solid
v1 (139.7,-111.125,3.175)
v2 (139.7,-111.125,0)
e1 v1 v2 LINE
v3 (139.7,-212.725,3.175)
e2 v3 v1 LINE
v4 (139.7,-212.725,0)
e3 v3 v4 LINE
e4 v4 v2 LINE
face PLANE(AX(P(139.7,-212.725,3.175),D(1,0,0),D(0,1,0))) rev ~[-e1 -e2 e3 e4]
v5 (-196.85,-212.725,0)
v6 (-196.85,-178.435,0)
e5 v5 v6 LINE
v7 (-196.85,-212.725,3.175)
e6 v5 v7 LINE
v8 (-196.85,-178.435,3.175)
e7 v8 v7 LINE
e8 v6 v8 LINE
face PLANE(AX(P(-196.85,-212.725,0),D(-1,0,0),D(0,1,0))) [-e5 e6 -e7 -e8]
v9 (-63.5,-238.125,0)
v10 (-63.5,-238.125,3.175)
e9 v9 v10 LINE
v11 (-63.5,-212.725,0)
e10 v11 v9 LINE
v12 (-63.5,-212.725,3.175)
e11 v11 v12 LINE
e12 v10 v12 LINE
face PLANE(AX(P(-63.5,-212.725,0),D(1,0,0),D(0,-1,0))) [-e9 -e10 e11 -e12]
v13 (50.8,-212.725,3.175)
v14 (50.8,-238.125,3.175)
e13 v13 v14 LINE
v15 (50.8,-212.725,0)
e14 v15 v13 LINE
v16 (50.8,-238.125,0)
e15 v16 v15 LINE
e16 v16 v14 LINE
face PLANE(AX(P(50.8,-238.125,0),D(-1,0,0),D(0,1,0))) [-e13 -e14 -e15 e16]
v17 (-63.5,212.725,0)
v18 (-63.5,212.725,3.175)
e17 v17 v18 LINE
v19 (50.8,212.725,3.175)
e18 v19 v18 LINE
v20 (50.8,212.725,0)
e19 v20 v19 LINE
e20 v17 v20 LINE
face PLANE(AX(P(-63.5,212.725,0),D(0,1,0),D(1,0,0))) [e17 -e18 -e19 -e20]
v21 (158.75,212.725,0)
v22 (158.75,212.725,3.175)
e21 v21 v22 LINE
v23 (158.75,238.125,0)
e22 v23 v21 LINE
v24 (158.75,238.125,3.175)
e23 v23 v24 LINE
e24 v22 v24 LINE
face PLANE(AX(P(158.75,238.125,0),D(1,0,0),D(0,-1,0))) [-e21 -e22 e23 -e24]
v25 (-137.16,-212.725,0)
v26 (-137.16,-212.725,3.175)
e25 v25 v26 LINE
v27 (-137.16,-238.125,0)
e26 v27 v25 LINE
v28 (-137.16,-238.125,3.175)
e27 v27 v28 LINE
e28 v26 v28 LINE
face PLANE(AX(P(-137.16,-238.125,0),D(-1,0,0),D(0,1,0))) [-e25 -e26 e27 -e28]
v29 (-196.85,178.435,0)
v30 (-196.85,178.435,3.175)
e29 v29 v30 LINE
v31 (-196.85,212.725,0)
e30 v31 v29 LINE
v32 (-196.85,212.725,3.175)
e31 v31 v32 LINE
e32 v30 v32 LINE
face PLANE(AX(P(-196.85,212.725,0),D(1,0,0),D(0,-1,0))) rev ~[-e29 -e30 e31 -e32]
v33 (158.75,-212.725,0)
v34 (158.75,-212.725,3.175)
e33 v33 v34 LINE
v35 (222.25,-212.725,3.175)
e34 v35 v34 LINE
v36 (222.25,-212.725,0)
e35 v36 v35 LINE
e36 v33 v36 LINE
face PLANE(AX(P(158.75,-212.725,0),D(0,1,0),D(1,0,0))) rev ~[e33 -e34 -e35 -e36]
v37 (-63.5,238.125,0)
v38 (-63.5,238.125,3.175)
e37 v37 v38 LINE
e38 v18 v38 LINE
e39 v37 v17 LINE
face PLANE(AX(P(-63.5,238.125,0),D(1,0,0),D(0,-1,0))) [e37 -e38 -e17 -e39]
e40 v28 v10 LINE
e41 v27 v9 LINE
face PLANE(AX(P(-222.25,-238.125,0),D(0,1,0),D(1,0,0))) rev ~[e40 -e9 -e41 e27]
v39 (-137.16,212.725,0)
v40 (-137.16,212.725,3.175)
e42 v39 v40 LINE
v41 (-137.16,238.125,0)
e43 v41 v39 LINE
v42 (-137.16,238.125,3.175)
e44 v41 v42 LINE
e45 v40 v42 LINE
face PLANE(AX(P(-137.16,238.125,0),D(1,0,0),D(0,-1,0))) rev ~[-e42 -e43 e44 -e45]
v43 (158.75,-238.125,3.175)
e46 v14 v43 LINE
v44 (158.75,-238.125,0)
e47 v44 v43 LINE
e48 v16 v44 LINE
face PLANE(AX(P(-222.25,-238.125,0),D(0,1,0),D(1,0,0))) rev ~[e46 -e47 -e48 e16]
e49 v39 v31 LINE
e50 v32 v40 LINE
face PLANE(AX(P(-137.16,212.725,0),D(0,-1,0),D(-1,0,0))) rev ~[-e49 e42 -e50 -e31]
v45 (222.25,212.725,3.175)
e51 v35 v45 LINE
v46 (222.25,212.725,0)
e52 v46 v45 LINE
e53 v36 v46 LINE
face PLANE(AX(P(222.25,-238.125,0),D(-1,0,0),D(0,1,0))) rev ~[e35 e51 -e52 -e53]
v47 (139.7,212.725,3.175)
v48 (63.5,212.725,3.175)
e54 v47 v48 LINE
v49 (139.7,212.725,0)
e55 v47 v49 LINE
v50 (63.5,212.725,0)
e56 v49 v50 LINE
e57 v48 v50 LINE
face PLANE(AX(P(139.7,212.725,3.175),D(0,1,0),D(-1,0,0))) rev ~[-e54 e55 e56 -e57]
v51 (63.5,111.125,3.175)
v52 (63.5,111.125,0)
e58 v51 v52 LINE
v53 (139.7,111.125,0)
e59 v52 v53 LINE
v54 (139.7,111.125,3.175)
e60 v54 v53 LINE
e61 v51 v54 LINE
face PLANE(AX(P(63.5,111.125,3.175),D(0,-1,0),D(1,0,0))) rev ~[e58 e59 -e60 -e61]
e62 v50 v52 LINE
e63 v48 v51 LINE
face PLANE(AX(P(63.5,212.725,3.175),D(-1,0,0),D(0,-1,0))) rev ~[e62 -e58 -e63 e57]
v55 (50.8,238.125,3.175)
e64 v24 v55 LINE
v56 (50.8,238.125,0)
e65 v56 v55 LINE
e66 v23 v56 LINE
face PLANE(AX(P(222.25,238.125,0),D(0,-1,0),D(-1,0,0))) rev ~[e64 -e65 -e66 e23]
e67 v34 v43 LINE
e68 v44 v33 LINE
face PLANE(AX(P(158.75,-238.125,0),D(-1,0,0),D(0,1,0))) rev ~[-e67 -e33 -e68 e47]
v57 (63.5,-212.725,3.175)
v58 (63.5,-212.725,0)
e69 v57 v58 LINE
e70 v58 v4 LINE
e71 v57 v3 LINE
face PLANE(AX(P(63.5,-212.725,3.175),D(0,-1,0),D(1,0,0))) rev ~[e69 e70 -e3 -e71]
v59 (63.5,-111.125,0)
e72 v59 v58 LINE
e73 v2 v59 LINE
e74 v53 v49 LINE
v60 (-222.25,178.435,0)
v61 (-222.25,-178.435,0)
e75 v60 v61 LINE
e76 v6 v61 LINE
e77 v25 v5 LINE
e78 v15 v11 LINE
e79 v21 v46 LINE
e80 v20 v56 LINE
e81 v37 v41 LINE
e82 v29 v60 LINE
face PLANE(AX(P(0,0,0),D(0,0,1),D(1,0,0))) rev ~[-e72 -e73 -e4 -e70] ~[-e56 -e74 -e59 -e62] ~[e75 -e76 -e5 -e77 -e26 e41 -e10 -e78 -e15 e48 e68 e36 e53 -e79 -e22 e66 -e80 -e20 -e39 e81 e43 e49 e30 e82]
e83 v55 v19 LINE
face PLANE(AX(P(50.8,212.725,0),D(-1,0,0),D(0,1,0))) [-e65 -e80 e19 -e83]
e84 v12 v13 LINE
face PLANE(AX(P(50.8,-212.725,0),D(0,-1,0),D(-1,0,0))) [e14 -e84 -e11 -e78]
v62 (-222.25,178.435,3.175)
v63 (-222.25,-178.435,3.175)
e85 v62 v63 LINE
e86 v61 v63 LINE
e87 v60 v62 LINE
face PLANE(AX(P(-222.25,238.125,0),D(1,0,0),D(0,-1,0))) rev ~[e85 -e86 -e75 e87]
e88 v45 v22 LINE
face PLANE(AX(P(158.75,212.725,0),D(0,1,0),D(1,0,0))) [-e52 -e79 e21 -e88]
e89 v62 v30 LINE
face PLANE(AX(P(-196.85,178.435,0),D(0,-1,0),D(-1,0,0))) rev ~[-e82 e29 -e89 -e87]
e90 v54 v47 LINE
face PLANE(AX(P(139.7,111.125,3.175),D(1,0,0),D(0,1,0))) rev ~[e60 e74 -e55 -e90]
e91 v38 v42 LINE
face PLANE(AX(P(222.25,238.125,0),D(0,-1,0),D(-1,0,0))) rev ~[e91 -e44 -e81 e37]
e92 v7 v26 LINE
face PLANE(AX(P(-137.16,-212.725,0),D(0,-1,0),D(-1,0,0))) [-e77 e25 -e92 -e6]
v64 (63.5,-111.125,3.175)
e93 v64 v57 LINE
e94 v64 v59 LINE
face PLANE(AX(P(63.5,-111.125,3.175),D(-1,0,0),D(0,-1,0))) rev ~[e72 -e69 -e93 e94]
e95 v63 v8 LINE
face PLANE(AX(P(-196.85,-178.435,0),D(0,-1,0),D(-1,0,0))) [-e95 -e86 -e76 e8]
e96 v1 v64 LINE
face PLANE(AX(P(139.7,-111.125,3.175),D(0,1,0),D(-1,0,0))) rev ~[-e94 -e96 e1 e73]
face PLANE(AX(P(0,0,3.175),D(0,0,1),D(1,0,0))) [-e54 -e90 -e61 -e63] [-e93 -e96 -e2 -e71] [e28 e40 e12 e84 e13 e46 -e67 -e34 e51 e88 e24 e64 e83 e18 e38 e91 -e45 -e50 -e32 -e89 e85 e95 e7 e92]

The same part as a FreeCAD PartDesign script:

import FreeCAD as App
import Part
import Sketcher
Q = App.Units.Quantity

doc = App.newDocument("Part")
body = doc.addObject("PartDesign::Body", "Body")

# Sketch on XY plane
sketch1 = body.newObject("Sketcher::SketchObject", "Sketch")
sketch1.AttachmentSupport = (doc.getObject("XY_Plane"), [""])
sketch1.MapMode = "FlatFace"
sketch1.addGeometry([
    Part.LineSegment(App.Vector(-222.25, 238.125, 0), App.Vector(-222.25, -238.125, 0)),
    Part.LineSegment(App.Vector(-222.25, -238.125, 0), App.Vector(222.25, -238.125, 0)),
    Part.LineSegment(App.Vector(222.25, -238.125, 0), App.Vector(222.25, 238.125, 0)),
    Part.LineSegment(App.Vector(222.25, 238.125, 0), App.Vector(-222.25, 238.125, 0)),
], False)
sketch1.addConstraint([
    Sketcher.Constraint("Coincident", 0, 2, 1, 1),
    Sketcher.Constraint("Coincident", 1, 2, 2, 1),
    Sketcher.Constraint("Coincident", 2, 2, 3, 1),
    Sketcher.Constraint("Coincident", 3, 2, 0, 1),
    Sketcher.Constraint("Vertical", 0),
    Sketcher.Constraint("Horizontal", 1),
    Sketcher.Constraint("Vertical", 2),
    Sketcher.Constraint("Horizontal", 3),
    Sketcher.Constraint("Symmetric", 0, 2, 2, 2, -1, 1),
    Sketcher.Constraint("DistanceX", 1, 1, 1, 2, Q("17.5 in")),
    Sketcher.Constraint("DistanceY", 0, 2, 0, 1, Q("18.75 in")),
])
pad1 = body.newObject("PartDesign::Pad", "Pad")
pad1.Profile = sketch1
pad1.Length = Q("0.125 in")

# Sketch on XY plane
sketch2 = body.newObject("Sketcher::SketchObject", "Sketch001")
sketch2.AttachmentSupport = (doc.getObject("XY_Plane"), [""])
sketch2.MapMode = "FlatFace"
sketch2.AttachmentOffset = App.Placement(App.Vector(0, 0, 0.125 * 25.4), App.Rotation())
sketch2.addGeometry([
    Part.LineSegment(App.Vector(63.5, -111.125, 0), App.Vector(63.5, -212.725, 0)),
    Part.LineSegment(App.Vector(63.5, -212.725, 0), App.Vector(139.7, -212.725, 0)),
    Part.LineSegment(App.Vector(139.7, -212.725, 0), App.Vector(139.7, -111.125, 0)),
    Part.LineSegment(App.Vector(139.7, -111.125, 0), App.Vector(63.5, -111.125, 0)),
], False)
sketch2.addConstraint([
    Sketcher.Constraint("Coincident", 0, 2, 1, 1),
    Sketcher.Constraint("Coincident", 1, 2, 2, 1),
    Sketcher.Constraint("Coincident", 2, 2, 3, 1),
    Sketcher.Constraint("Coincident", 3, 2, 0, 1),
    Sketcher.Constraint("Vertical", 0),
    Sketcher.Constraint("Horizontal", 1),
    Sketcher.Constraint("Vertical", 2),
    Sketcher.Constraint("Horizontal", 3),
    Sketcher.Constraint("DistanceX", 1, 1, 1, 2, Q("3 in")),
    Sketcher.Constraint("DistanceY", 0, 2, 0, 1, Q("4 in")),
    Sketcher.Constraint("DistanceX", -1, 1, 0, 2, Q("2.5 in")),
    Sketcher.Constraint("DistanceY", 0, 2, -1, 1, Q("8.375 in")),
])
pocket1 = body.newObject("PartDesign::Pocket", "Pocket")
pocket1.Profile = sketch2
pocket1.Type = "ThroughAll"

# Sketch on XY plane
sketch3 = body.newObject("Sketcher::SketchObject", "Sketch002")
sketch3.AttachmentSupport = (doc.getObject("XY_Plane"), [""])
sketch3.MapMode = "FlatFace"
sketch3.AttachmentOffset = App.Placement(App.Vector(0, 0, 0.125 * 25.4), App.Rotation())
sketch3.addGeometry([
    Part.LineSegment(App.Vector(63.5, 212.725, 0), App.Vector(63.5, 111.125, 0)),
    Part.LineSegment(App.Vector(63.5, 111.125, 0), App.Vector(139.7, 111.125, 0)),
    Part.LineSegment(App.Vector(139.7, 111.125, 0), App.Vector(139.7, 212.725, 0)),
    Part.LineSegment(App.Vector(139.7, 212.725, 0), App.Vector(63.5, 212.725, 0)),
], False)
sketch3.addConstraint([
    Sketcher.Constraint("Coincident", 0, 2, 1, 1),
    Sketcher.Constraint("Coincident", 1, 2, 2, 1),
    Sketcher.Constraint("Coincident", 2, 2, 3, 1),
    Sketcher.Constraint("Coincident", 3, 2, 0, 1),
    Sketcher.Constraint("Vertical", 0),
    Sketcher.Constraint("Horizontal", 1),
    Sketcher.Constraint("Vertical", 2),
    Sketcher.Constraint("Horizontal", 3),
    Sketcher.Constraint("DistanceX", 1, 1, 1, 2, Q("3 in")),
    Sketcher.Constraint("DistanceY", 0, 2, 0, 1, Q("4 in")),
    Sketcher.Constraint("DistanceX", -1, 1, 0, 2, Q("2.5 in")),
    Sketcher.Constraint("DistanceY", -1, 1, 0, 2, Q("4.375 in")),
])
pocket2 = body.newObject("PartDesign::Pocket", "Pocket001")
pocket2.Profile = sketch3
pocket2.Type = "ThroughAll"

# Sketch on XY plane
sketch4 = body.newObject("Sketcher::SketchObject", "Sketch003")
sketch4.AttachmentSupport = (doc.getObject("XY_Plane"), [""])
sketch4.MapMode = "FlatFace"
sketch4.addGeometry([
    Part.LineSegment(App.Vector(222.25, -212.725, 0), App.Vector(222.25, -238.125, 0)),
    Part.LineSegment(App.Vector(222.25, -238.125, 0), App.Vector(158.75, -238.125, 0)),
    Part.LineSegment(App.Vector(158.75, -238.125, 0), App.Vector(158.75, -212.725, 0)),
    Part.LineSegment(App.Vector(158.75, -212.725, 0), App.Vector(222.25, -212.725, 0)),
], False)
sketch4.addConstraint([
    Sketcher.Constraint("Coincident", 0, 2, 1, 1),
    Sketcher.Constraint("Coincident", 1, 2, 2, 1),
    Sketcher.Constraint("Coincident", 2, 2, 3, 1),
    Sketcher.Constraint("Coincident", 3, 2, 0, 1),
    Sketcher.Constraint("Vertical", 0),
    Sketcher.Constraint("Horizontal", 1),
    Sketcher.Constraint("Vertical", 2),
    Sketcher.Constraint("Horizontal", 3),
    Sketcher.Constraint("DistanceY", 0, 2, 0, 1, Q("1 in")),
    Sketcher.Constraint("DistanceX", 1, 2, 1, 1, Q("2.5 in")),
    Sketcher.Constraint("DistanceX", -1, 1, 0, 2, Q("8.75 in")),
    Sketcher.Constraint("DistanceY", 0, 2, -1, 1, Q("9.375 in")),
])
pocket3 = body.newObject("PartDesign::Pocket", "Pocket002")
pocket3.Profile = sketch4
pocket3.Type = "ThroughAll"
pocket3.Reversed = True

# Sketch on XY plane
sketch5 = body.newObject("Sketcher::SketchObject", "Sketch004")
sketch5.AttachmentSupport = (doc.getObject("XY_Plane"), [""])
sketch5.MapMode = "FlatFace"
sketch5.addGeometry([
    Part.LineSegment(App.Vector(158.75, 238.125, 0), App.Vector(222.25, 238.125, 0)),
    Part.LineSegment(App.Vector(222.25, 238.125, 0), App.Vector(222.25, 212.725, 0)),
    Part.LineSegment(App.Vector(222.25, 212.725, 0), App.Vector(158.75, 212.725, 0)),
    Part.LineSegment(App.Vector(158.75, 212.725, 0), App.Vector(158.75, 238.125, 0)),
], False)
sketch5.addConstraint([
    Sketcher.Constraint("Coincident", 0, 2, 1, 1),
    Sketcher.Constraint("Coincident", 1, 2, 2, 1),
    Sketcher.Constraint("Coincident", 2, 2, 3, 1),
    Sketcher.Constraint("Coincident", 3, 2, 0, 1),
    Sketcher.Constraint("Horizontal", 0),
    Sketcher.Constraint("Vertical", 1),
    Sketcher.Constraint("Horizontal", 2),
    Sketcher.Constraint("Vertical", 3),
    Sketcher.Constraint("DistanceY", 1, 2, 1, 1, Q("1 in")),
    Sketcher.Constraint("DistanceX", 0, 1, 0, 2, Q("2.5 in")),
    Sketcher.Constraint("DistanceX", -1, 1, 0, 2, Q("8.75 in")),
    Sketcher.Constraint("DistanceY", -1, 1, 0, 2, Q("9.375 in")),
])
pocket4 = body.newObject("PartDesign::Pocket", "Pocket003")
pocket4.Profile = sketch5
pocket4.Type = "ThroughAll"
pocket4.Reversed = True

# Sketch on XY plane
sketch6 = body.newObject("Sketcher::SketchObject", "Sketch005")
sketch6.AttachmentSupport = (doc.getObject("XY_Plane"), [""])
sketch6.MapMode = "FlatFace"
sketch6.addGeometry([
    Part.LineSegment(App.Vector(-222.25, 238.125, 0), App.Vector(-137.16, 238.125, 0)),  # 0
    Part.LineSegment(App.Vector(-137.16, 238.125, 0), App.Vector(-137.16, 212.725, 0)),  # 1
    Part.LineSegment(App.Vector(-137.16, 212.725, 0), App.Vector(-196.85, 212.725, 0)),  # 2
    Part.LineSegment(App.Vector(-196.85, 212.725, 0), App.Vector(-196.85, 178.435, 0)),  # 3
    Part.LineSegment(App.Vector(-196.85, 178.435, 0), App.Vector(-222.25, 178.435, 0)),  # 4
    Part.LineSegment(App.Vector(-222.25, 178.435, 0), App.Vector(-222.25, 238.125, 0)),  # 5
], False)
sketch6.addConstraint([
    Sketcher.Constraint("Coincident", 0, 2, 1, 1),
    Sketcher.Constraint("Coincident", 1, 2, 2, 1),
    Sketcher.Constraint("Coincident", 2, 2, 3, 1),
    Sketcher.Constraint("Coincident", 3, 2, 4, 1),
    Sketcher.Constraint("Coincident", 4, 2, 5, 1),
    Sketcher.Constraint("Coincident", 5, 2, 0, 1),
    Sketcher.Constraint("Horizontal", 0),
    Sketcher.Constraint("Vertical", 1),
    Sketcher.Constraint("Horizontal", 2),
    Sketcher.Constraint("Vertical", 3),
    Sketcher.Constraint("Horizontal", 4),
    Sketcher.Constraint("Vertical", 5),
    Sketcher.Constraint("Equal", 4, 1),
    Sketcher.Constraint("Equal", 2, 5),
    Sketcher.Constraint("DistanceX", 4, 2, 4, 1, Q("1 in")),
    Sketcher.Constraint("DistanceX", 0, 1, 0, 2, Q("3.35 in")),
    Sketcher.Constraint("DistanceX", 0, 2, -1, 1, Q("5.4 in")),
    Sketcher.Constraint("DistanceY", -1, 1, 0, 2, Q("9.375 in")),
])
pocket5 = body.newObject("PartDesign::Pocket", "Pocket004")
pocket5.Profile = sketch6
pocket5.Type = "ThroughAll"
pocket5.Reversed = True

# Sketch on XY plane
sketch7 = body.newObject("Sketcher::SketchObject", "Sketch006")
sketch7.AttachmentSupport = (doc.getObject("XY_Plane"), [""])
sketch7.MapMode = "FlatFace"
sketch7.addGeometry([
    Part.LineSegment(App.Vector(-137.16, -238.125, 0), App.Vector(-222.25, -238.125, 0)),  # 0
    Part.LineSegment(App.Vector(-222.25, -238.125, 0), App.Vector(-222.25, -178.435, 0)),  # 1
    Part.LineSegment(App.Vector(-222.25, -178.435, 0), App.Vector(-196.85, -178.435, 0)),  # 2
    Part.LineSegment(App.Vector(-196.85, -178.435, 0), App.Vector(-196.85, -212.725, 0)),  # 3
    Part.LineSegment(App.Vector(-196.85, -212.725, 0), App.Vector(-137.16, -212.725, 0)),  # 4
    Part.LineSegment(App.Vector(-137.16, -212.725, 0), App.Vector(-137.16, -238.125, 0)),  # 5
], False)
sketch7.addConstraint([
    Sketcher.Constraint("Coincident", 0, 2, 1, 1),
    Sketcher.Constraint("Coincident", 1, 2, 2, 1),
    Sketcher.Constraint("Coincident", 2, 2, 3, 1),
    Sketcher.Constraint("Coincident", 3, 2, 4, 1),
    Sketcher.Constraint("Coincident", 4, 2, 5, 1),
    Sketcher.Constraint("Coincident", 5, 2, 0, 1),
    Sketcher.Constraint("Horizontal", 0),
    Sketcher.Constraint("Vertical", 1),
    Sketcher.Constraint("Horizontal", 2),
    Sketcher.Constraint("Vertical", 3),
    Sketcher.Constraint("Horizontal", 4),
    Sketcher.Constraint("Vertical", 5),
    Sketcher.Constraint("Equal", 4, 1),
    Sketcher.Constraint("Equal", 2, 5),
    Sketcher.Constraint("DistanceX", 2, 1, 2, 2, Q("1 in")),
    Sketcher.Constraint("DistanceX", 0, 2, 0, 1, Q("3.35 in")),
    Sketcher.Constraint("DistanceX", 4, 2, -1, 1, Q("5.4 in")),
    Sketcher.Constraint("DistanceY", 0, 2, -1, 1, Q("9.375 in")),
])
pocket6 = body.newObject("PartDesign::Pocket", "Pocket005")
pocket6.Profile = sketch7
pocket6.Type = "ThroughAll"
pocket6.Reversed = True

# Sketch on XY plane
sketch8 = body.newObject("Sketcher::SketchObject", "Sketch007")
sketch8.AttachmentSupport = (doc.getObject("XY_Plane"), [""])
sketch8.MapMode = "FlatFace"
sketch8.addGeometry([
    Part.LineSegment(App.Vector(-63.5, 238.125, 0), App.Vector(50.8, 238.125, 0)),  # 0
    Part.LineSegment(App.Vector(50.8, 238.125, 0), App.Vector(50.8, 212.725, 0)),  # 1
    Part.LineSegment(App.Vector(50.8, 212.725, 0), App.Vector(-63.5, 212.725, 0)),  # 2
    Part.LineSegment(App.Vector(-63.5, 212.725, 0), App.Vector(-63.5, 238.125, 0)),  # 3
    Part.LineSegment(App.Vector(-63.5, -212.725, 0), App.Vector(50.8, -212.725, 0)),  # 4
    Part.LineSegment(App.Vector(50.8, -212.725, 0), App.Vector(50.8, -238.125, 0)),  # 5
    Part.LineSegment(App.Vector(50.8, -238.125, 0), App.Vector(-63.5, -238.125, 0)),  # 6
    Part.LineSegment(App.Vector(-63.5, -238.125, 0), App.Vector(-63.5, -212.725, 0)),  # 7
], False)
sketch8.addConstraint([
    Sketcher.Constraint("Coincident", 0, 2, 1, 1),
    Sketcher.Constraint("Coincident", 1, 2, 2, 1),
    Sketcher.Constraint("Coincident", 2, 2, 3, 1),
    Sketcher.Constraint("Coincident", 3, 2, 0, 1),
    Sketcher.Constraint("Coincident", 4, 2, 5, 1),
    Sketcher.Constraint("Coincident", 5, 2, 6, 1),
    Sketcher.Constraint("Coincident", 6, 2, 7, 1),
    Sketcher.Constraint("Coincident", 7, 2, 4, 1),
    Sketcher.Constraint("Horizontal", 0),
    Sketcher.Constraint("Vertical", 1),
    Sketcher.Constraint("Horizontal", 2),
    Sketcher.Constraint("Vertical", 3),
    Sketcher.Constraint("Horizontal", 4),
    Sketcher.Constraint("Vertical", 5),
    Sketcher.Constraint("Horizontal", 6),
    Sketcher.Constraint("Vertical", 7),
    Sketcher.Constraint("Symmetric", 1, 2, 4, 2, -1),
    Sketcher.Constraint("Symmetric", 3, 2, 6, 2, -1),
    Sketcher.Constraint("DistanceY", 1, 2, 1, 1, Q("1 in")),
    Sketcher.Constraint("DistanceX", 0, 1, 0, 2, Q("4.5 in")),
    Sketcher.Constraint("DistanceX", -1, 1, 0, 2, Q("2 in")),
    Sketcher.Constraint("DistanceY", 4, 2, 1, 2, Q("16.75 in")),
])
pocket7 = body.newObject("PartDesign::Pocket", "Pocket006")
pocket7.Profile = sketch8
pocket7.Type = "ThroughAll"
pocket7.Reversed = True

doc.recompute()
